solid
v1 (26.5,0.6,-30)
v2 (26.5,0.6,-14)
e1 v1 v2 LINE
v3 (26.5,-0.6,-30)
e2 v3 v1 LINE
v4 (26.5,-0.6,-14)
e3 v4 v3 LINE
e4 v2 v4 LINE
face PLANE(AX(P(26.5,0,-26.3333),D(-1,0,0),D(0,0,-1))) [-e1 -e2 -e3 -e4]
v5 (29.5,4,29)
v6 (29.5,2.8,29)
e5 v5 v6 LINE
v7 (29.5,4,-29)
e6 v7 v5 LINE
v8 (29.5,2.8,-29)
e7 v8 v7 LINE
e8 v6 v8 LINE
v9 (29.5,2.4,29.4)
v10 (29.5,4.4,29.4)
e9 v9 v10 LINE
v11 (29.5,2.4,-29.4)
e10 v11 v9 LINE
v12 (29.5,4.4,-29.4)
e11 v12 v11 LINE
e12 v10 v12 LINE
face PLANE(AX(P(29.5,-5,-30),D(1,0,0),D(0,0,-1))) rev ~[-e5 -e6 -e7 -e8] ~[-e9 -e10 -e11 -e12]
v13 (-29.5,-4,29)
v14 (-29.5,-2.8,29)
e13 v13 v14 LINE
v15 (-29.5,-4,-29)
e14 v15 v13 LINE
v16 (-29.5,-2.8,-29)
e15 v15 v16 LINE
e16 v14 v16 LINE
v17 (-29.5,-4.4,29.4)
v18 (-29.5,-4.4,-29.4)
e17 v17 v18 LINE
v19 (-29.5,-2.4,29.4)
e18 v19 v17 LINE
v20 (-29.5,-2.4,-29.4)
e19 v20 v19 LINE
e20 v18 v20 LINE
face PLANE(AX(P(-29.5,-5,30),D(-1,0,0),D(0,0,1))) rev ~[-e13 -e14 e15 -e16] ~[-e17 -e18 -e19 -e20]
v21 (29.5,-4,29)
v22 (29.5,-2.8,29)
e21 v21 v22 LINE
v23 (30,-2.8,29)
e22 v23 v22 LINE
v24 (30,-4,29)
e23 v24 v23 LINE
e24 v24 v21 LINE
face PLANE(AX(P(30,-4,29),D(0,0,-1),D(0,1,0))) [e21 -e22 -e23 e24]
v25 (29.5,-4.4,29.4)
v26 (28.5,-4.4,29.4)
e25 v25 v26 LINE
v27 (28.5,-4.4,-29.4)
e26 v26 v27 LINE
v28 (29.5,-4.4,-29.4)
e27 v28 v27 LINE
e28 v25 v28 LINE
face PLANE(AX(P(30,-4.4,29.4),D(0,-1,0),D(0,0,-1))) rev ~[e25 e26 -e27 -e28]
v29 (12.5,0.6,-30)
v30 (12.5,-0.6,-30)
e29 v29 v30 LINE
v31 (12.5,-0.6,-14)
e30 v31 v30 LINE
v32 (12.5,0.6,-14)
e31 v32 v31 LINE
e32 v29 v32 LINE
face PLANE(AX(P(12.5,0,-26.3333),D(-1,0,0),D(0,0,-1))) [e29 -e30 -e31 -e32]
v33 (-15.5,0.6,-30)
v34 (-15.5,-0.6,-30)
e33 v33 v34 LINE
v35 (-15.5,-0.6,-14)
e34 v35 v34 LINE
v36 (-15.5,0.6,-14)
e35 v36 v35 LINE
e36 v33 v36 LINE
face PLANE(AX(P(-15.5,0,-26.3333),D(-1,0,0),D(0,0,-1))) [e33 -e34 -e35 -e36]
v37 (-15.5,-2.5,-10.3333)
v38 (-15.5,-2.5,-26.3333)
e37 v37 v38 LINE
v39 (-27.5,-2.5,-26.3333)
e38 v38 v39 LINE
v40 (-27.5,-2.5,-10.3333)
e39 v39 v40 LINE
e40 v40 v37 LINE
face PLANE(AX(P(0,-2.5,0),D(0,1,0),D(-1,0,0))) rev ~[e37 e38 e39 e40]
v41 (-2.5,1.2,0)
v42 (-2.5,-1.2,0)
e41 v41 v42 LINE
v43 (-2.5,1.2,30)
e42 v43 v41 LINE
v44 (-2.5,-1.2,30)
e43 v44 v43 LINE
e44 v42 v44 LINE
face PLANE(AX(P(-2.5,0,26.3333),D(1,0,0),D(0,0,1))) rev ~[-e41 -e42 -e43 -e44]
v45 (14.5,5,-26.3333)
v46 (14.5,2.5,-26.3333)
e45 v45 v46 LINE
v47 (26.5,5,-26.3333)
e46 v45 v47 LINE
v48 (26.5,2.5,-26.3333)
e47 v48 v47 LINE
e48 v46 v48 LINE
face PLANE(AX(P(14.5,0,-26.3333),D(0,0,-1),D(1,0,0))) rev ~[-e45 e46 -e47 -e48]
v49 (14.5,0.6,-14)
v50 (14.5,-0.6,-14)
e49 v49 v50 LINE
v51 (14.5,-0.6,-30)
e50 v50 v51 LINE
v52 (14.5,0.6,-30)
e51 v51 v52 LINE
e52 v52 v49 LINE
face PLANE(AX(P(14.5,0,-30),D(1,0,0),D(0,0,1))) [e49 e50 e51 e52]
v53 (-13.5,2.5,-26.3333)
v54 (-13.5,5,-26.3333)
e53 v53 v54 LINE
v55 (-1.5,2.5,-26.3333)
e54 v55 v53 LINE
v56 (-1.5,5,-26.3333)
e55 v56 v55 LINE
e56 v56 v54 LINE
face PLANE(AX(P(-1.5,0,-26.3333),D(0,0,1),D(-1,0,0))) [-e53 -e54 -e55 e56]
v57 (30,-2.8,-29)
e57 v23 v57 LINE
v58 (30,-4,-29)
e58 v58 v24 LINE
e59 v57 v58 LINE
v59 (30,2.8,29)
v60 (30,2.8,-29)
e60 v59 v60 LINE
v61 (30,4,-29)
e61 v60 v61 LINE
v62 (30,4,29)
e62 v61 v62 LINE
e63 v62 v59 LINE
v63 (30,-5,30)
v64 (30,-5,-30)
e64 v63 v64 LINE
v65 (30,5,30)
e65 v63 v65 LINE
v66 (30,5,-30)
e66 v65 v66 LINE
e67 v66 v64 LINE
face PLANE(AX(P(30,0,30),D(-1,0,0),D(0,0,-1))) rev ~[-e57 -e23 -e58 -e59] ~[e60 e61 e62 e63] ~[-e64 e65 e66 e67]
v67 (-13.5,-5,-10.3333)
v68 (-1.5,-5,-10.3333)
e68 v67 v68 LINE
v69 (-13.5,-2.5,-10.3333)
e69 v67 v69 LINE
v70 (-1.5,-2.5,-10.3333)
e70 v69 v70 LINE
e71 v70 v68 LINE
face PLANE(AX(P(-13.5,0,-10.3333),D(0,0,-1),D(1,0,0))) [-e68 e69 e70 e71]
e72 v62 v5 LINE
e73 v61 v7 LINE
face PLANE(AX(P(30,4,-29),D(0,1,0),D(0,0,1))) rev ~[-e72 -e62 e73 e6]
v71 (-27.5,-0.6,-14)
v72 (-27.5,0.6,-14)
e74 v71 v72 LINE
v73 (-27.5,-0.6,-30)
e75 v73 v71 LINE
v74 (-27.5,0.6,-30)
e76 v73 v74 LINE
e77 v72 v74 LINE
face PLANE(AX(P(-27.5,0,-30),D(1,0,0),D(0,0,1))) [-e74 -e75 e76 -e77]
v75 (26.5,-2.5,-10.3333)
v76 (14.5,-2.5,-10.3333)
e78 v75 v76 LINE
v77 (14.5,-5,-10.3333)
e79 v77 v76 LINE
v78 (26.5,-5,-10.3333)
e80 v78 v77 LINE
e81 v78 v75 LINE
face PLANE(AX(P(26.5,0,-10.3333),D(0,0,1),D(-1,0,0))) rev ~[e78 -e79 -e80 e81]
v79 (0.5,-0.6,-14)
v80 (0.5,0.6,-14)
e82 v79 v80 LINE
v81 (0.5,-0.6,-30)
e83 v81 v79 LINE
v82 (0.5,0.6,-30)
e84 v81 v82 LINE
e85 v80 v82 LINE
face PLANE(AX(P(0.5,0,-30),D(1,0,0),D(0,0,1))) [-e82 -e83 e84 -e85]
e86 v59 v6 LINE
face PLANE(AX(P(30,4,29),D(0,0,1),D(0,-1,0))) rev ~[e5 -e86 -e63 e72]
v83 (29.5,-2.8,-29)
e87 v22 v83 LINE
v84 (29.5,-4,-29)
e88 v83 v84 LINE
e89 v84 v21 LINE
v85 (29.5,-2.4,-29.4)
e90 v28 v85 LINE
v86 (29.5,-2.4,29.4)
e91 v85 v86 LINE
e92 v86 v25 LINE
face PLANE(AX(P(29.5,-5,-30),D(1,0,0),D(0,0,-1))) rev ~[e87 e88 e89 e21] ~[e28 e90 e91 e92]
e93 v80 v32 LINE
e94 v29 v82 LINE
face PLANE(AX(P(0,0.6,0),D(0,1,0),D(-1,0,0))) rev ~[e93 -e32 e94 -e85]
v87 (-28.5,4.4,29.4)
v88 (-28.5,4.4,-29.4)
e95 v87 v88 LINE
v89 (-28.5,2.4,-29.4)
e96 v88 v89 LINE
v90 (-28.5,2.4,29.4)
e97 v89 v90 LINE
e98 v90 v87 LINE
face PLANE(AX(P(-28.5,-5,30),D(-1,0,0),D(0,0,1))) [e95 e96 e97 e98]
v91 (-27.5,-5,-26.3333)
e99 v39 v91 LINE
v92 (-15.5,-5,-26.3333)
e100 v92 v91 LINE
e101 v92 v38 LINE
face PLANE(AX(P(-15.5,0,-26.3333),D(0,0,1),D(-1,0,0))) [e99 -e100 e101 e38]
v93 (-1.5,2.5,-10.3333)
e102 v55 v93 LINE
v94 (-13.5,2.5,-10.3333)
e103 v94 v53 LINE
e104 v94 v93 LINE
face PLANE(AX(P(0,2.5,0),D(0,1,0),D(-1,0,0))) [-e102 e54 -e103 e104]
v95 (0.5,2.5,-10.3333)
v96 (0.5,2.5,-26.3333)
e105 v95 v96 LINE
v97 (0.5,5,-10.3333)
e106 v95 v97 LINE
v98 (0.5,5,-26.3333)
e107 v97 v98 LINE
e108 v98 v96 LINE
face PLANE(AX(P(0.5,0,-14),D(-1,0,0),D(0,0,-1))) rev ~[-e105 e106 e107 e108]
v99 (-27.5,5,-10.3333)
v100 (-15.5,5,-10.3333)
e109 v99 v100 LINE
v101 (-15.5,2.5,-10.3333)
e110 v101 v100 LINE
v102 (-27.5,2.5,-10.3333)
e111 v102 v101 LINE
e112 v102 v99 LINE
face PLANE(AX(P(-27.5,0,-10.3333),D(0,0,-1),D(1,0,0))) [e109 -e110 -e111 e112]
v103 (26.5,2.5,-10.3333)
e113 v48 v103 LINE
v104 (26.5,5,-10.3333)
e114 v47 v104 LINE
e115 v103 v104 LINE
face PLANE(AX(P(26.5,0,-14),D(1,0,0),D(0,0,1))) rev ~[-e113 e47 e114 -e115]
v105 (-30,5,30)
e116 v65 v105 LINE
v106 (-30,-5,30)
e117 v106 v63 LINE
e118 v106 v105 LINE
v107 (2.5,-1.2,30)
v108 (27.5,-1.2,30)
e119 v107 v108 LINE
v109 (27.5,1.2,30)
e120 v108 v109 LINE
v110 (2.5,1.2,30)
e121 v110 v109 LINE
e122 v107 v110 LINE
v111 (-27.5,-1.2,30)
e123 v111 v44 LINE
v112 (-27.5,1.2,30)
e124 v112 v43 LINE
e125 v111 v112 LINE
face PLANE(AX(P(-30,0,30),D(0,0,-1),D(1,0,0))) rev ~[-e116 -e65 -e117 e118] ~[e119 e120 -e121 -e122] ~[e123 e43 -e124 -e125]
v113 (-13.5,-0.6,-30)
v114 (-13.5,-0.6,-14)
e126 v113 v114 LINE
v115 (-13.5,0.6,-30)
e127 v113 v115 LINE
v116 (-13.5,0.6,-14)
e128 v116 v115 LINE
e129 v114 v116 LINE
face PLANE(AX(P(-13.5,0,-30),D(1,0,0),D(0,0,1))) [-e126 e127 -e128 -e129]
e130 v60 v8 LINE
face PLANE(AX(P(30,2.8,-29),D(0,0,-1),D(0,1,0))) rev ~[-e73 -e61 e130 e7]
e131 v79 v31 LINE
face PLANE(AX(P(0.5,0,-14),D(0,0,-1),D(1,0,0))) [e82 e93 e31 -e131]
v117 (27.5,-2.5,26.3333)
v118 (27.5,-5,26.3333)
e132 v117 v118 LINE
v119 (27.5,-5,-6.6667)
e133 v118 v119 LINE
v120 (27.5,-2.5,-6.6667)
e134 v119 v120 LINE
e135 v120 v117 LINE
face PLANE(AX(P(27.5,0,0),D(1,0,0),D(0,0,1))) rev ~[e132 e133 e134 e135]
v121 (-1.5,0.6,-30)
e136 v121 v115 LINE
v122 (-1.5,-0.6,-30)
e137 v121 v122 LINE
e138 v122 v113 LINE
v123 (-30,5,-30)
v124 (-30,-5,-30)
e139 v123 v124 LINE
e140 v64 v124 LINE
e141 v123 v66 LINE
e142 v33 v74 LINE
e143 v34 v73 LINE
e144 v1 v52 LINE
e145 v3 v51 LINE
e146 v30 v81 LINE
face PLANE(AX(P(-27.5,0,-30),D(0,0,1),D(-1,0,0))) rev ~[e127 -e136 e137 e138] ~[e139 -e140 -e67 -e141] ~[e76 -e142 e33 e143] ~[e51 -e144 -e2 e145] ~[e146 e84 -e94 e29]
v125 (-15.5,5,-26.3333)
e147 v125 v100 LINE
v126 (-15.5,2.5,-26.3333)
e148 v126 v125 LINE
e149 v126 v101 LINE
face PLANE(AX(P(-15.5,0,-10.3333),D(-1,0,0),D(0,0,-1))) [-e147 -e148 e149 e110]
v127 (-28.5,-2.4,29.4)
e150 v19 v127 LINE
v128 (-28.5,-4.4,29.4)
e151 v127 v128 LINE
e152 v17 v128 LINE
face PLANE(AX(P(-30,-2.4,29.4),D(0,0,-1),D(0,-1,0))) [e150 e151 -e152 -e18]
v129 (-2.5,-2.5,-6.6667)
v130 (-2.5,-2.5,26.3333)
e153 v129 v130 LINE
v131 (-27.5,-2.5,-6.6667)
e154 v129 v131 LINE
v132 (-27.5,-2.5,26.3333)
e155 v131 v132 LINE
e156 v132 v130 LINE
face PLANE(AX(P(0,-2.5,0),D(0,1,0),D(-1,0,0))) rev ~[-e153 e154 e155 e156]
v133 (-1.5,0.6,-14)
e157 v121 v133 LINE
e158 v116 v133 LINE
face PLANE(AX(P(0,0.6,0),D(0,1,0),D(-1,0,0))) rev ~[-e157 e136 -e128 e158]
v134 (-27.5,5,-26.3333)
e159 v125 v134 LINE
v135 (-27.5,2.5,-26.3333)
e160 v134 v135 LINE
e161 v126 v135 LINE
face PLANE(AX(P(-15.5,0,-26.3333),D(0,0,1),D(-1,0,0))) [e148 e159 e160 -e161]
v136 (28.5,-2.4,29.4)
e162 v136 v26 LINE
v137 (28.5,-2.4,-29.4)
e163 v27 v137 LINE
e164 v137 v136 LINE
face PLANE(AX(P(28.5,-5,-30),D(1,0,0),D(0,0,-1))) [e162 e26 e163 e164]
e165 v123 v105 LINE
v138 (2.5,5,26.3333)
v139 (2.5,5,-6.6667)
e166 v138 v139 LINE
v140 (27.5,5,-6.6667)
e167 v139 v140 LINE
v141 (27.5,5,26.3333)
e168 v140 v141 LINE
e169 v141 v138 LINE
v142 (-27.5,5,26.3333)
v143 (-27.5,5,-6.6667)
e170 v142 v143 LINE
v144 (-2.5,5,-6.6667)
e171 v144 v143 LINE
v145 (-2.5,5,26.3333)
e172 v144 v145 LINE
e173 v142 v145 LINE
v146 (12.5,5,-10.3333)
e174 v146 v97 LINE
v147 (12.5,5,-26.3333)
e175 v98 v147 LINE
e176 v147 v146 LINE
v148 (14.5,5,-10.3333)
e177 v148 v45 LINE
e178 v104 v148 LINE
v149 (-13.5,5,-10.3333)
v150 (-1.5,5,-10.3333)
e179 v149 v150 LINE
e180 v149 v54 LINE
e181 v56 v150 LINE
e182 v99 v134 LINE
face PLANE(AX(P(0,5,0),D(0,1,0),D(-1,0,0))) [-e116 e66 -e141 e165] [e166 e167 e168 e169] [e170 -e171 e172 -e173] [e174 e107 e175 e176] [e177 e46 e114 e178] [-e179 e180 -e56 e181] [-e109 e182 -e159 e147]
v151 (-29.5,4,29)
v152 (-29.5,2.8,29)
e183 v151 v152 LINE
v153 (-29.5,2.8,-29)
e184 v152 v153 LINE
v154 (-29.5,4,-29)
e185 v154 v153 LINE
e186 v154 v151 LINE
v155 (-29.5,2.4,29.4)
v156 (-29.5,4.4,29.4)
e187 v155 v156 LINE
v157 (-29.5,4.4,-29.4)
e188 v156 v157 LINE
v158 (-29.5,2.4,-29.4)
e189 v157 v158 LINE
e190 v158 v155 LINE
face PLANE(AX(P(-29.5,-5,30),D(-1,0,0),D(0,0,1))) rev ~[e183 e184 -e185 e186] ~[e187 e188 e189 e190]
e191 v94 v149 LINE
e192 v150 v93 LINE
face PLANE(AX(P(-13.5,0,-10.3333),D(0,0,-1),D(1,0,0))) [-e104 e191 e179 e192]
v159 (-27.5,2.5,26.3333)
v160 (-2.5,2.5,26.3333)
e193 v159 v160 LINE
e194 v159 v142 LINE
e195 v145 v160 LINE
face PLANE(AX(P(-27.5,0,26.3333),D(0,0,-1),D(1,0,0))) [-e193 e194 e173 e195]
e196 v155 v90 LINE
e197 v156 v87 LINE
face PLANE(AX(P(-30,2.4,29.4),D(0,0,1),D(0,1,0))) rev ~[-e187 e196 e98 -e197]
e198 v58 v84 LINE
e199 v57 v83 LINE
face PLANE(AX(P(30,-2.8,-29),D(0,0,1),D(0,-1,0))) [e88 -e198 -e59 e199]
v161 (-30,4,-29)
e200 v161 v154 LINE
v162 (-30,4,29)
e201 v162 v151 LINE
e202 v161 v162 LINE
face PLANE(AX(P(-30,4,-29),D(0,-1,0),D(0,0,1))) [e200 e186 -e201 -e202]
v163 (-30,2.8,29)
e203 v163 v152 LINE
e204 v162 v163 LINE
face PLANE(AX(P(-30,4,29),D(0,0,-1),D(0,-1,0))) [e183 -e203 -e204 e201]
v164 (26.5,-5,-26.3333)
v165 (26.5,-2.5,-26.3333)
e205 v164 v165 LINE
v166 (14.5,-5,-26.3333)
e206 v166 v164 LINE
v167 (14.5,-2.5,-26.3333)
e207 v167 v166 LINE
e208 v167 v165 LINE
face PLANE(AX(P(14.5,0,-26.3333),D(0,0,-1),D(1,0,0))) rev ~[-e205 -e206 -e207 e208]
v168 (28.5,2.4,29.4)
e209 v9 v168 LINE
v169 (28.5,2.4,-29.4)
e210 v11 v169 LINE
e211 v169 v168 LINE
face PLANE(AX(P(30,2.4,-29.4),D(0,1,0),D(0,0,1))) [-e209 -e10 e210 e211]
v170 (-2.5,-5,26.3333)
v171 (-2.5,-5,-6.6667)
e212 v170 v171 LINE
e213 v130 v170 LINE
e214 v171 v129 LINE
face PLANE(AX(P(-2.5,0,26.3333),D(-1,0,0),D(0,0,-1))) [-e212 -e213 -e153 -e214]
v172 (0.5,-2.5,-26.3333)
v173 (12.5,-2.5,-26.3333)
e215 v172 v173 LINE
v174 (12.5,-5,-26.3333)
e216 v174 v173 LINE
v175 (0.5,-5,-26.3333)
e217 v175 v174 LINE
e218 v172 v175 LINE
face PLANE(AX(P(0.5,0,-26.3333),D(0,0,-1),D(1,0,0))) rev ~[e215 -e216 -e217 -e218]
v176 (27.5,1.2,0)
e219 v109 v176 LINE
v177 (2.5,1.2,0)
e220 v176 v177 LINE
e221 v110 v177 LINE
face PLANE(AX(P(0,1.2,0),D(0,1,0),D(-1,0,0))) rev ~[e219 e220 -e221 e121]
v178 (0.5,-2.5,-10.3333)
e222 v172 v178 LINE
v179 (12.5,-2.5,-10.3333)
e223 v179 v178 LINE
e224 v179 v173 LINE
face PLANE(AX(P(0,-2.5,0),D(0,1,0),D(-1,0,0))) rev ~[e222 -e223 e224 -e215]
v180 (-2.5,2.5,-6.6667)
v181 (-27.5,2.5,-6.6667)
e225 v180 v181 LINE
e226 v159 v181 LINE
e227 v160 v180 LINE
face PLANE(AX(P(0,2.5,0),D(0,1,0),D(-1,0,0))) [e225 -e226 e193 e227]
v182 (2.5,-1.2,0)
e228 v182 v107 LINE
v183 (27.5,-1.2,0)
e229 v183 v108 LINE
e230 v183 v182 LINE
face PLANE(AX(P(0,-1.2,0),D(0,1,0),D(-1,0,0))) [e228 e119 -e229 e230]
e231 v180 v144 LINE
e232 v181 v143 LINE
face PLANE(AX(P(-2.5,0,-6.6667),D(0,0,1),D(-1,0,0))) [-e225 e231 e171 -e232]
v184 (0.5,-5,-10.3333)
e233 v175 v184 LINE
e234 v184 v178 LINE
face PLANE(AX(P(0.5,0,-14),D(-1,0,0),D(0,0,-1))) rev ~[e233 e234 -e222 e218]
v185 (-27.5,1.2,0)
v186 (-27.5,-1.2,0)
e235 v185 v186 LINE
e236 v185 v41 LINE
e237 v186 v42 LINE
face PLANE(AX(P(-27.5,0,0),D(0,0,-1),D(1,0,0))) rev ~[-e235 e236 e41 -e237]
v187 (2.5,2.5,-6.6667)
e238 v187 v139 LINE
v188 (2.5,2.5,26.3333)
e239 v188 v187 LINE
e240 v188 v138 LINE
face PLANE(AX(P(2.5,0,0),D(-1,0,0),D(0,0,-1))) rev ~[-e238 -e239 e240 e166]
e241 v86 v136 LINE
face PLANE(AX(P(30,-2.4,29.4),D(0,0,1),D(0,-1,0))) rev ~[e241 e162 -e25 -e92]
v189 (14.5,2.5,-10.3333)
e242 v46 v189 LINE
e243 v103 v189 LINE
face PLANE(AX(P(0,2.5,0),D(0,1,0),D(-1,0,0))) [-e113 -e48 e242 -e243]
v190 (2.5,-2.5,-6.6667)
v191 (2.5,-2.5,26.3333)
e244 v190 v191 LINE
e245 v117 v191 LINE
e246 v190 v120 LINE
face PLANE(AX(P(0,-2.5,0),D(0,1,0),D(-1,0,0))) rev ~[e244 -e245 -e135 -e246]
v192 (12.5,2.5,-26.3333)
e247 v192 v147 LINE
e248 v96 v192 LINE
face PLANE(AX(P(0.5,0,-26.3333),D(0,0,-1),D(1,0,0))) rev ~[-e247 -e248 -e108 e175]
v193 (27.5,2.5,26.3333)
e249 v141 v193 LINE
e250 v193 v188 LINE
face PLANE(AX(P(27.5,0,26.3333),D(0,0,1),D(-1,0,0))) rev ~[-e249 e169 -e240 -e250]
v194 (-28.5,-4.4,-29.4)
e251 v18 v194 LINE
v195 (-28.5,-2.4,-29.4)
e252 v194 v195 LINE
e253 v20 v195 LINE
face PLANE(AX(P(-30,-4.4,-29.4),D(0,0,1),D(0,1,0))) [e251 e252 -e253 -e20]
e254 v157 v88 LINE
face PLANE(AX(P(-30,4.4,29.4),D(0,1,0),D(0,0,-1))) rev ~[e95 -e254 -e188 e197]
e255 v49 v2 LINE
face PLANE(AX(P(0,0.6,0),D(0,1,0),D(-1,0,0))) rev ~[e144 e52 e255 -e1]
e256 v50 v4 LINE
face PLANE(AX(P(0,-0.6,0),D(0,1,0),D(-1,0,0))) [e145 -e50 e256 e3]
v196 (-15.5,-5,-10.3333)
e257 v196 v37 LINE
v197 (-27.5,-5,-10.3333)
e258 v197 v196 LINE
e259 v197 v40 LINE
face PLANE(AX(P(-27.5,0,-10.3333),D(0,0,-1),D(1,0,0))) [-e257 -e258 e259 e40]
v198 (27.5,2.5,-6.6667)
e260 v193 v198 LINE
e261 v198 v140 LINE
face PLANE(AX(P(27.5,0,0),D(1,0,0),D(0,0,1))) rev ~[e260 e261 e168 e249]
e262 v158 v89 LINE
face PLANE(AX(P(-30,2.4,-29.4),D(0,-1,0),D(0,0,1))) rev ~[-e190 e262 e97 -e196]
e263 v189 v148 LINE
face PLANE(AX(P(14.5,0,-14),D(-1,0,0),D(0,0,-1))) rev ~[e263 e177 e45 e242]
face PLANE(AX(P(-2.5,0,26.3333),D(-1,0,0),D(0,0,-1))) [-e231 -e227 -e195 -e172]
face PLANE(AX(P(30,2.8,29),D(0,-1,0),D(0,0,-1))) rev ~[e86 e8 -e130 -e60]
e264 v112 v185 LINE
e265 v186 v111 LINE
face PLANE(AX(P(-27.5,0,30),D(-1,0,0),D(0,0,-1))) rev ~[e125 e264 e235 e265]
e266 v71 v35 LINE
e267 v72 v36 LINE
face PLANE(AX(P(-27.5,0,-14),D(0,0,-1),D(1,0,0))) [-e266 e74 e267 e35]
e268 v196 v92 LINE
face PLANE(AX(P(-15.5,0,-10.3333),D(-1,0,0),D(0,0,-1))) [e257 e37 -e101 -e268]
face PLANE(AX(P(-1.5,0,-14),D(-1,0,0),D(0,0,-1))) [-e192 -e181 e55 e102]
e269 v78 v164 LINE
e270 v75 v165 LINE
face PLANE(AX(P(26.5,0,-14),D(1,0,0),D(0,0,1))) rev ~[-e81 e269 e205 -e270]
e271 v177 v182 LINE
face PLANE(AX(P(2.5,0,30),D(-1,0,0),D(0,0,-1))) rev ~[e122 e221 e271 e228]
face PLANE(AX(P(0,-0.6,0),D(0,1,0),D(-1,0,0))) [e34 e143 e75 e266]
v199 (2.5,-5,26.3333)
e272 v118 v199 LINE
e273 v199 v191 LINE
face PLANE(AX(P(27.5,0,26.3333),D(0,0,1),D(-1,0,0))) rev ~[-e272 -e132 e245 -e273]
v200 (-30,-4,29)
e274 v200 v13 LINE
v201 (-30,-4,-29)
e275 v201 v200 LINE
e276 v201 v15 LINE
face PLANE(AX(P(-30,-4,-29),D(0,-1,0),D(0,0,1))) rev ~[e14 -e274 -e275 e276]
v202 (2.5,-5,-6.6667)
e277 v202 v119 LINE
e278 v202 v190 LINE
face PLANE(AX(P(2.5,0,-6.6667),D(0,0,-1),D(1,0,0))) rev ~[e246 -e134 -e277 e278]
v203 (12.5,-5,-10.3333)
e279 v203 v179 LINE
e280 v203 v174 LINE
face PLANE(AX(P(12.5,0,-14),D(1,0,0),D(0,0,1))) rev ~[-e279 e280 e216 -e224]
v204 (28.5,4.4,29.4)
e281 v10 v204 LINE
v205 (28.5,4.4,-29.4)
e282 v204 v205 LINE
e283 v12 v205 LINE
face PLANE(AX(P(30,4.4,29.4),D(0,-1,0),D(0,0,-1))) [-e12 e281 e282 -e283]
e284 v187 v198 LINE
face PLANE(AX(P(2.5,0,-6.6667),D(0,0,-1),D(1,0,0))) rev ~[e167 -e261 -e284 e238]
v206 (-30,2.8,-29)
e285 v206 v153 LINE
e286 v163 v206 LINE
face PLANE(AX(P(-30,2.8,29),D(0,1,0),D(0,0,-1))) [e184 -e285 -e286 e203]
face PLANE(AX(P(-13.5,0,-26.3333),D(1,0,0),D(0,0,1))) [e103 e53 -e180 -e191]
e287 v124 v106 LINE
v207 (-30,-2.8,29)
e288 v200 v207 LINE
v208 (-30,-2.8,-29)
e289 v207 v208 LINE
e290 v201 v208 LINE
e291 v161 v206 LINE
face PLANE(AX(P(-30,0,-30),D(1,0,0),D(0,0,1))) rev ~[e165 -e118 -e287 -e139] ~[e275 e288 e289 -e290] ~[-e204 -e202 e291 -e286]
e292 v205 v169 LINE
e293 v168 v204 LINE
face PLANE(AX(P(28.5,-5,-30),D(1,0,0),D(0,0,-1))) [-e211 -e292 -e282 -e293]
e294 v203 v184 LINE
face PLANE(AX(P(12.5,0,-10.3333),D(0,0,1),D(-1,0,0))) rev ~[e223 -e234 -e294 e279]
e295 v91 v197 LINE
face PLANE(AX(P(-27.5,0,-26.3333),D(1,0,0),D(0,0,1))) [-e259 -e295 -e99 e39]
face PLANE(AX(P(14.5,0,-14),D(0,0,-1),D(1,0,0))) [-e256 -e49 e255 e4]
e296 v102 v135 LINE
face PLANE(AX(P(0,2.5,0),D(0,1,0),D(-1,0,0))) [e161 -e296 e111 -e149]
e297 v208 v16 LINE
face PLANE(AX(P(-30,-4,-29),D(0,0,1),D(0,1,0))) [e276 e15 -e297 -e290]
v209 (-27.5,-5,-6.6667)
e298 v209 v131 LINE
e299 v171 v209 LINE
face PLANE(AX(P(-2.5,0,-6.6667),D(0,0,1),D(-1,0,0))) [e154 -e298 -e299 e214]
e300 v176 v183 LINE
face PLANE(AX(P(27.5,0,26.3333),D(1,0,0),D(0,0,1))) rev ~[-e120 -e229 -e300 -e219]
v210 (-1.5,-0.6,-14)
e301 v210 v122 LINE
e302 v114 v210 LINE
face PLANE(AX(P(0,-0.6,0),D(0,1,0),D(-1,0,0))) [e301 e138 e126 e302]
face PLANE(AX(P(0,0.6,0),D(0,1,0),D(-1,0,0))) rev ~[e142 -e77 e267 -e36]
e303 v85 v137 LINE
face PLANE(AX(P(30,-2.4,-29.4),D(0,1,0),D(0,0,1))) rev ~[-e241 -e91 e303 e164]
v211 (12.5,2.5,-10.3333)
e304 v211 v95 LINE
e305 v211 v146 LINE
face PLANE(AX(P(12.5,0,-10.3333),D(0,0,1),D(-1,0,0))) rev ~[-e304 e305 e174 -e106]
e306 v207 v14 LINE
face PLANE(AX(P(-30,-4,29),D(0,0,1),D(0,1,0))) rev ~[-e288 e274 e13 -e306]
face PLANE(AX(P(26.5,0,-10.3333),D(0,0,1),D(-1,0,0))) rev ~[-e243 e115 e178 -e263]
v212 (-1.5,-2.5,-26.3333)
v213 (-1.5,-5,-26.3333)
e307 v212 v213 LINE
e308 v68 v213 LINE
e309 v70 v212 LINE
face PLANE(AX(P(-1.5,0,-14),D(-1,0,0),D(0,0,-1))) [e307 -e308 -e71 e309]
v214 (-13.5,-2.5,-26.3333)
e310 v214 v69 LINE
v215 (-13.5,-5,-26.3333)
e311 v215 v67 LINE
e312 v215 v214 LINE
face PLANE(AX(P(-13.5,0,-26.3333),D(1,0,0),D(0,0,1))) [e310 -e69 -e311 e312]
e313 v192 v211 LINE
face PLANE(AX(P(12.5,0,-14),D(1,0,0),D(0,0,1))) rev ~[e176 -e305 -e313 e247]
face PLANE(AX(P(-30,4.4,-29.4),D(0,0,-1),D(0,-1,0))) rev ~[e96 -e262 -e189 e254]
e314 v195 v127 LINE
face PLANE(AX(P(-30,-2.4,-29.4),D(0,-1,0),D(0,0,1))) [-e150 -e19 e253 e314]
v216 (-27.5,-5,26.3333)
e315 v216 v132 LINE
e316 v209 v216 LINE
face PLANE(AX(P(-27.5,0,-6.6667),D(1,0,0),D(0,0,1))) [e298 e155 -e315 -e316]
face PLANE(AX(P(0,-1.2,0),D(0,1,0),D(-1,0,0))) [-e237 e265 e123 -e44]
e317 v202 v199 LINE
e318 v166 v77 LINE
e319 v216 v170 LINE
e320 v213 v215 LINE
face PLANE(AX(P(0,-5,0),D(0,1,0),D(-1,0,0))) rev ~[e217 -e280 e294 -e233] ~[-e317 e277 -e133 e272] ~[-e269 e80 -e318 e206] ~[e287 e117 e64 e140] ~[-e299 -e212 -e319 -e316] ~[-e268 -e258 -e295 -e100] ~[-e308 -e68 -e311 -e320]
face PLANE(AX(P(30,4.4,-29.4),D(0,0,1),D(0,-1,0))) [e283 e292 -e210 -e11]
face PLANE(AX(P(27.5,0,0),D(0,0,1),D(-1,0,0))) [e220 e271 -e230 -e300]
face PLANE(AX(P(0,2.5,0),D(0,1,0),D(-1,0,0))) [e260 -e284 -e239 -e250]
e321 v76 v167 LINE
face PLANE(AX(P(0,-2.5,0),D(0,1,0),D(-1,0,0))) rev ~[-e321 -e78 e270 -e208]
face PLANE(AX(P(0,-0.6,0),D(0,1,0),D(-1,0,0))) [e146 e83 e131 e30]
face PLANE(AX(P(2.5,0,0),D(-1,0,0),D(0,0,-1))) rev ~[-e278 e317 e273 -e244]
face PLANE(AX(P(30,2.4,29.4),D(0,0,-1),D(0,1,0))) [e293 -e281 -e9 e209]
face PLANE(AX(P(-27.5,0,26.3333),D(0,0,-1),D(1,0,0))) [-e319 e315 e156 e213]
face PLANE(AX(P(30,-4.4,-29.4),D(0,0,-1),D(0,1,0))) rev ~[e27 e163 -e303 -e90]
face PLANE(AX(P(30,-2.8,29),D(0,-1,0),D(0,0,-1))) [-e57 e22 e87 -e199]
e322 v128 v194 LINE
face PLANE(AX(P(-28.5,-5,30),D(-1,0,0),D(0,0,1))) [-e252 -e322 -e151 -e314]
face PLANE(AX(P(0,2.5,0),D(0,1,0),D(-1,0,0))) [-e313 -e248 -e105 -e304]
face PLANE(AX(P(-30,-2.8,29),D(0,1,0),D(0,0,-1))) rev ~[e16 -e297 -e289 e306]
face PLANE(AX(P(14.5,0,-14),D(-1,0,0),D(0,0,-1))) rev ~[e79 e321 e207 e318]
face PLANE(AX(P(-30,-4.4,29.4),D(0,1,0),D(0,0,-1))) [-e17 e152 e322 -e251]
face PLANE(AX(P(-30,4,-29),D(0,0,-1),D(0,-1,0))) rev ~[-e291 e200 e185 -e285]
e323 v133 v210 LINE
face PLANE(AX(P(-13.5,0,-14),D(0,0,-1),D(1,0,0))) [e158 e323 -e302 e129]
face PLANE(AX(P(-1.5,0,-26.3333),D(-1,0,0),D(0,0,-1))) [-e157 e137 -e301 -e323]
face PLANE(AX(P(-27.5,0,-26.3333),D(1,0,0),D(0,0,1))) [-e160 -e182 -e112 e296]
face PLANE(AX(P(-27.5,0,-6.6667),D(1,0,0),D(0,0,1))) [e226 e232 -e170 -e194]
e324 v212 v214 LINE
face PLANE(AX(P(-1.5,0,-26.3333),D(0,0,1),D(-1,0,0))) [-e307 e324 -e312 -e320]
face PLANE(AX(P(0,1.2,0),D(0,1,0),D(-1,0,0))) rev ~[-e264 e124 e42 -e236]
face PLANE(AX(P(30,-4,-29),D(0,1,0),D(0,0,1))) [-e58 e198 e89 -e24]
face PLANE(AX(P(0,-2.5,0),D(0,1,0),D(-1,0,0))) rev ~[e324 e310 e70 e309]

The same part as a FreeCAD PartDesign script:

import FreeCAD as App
import Part
import Sketcher
from FreeCAD import Vector
Q = App.Units.Quantity


def add_polygon(sketch, points):
    """Adds a closed chain of lines whose ends are joined by coincident constraints."""
    first, n = sketch.GeometryCount, len(points)
    for a, b in zip(points, points[1:] + points[:1]):
        sketch.addGeometry(Part.LineSegment(App.Vector(*a, 0), App.Vector(*b, 0)), False)
    for i in range(n):
        sketch.addConstraint(Sketcher.Constraint("Coincident", first + i, 2, first + (i + 1) % n, 1))

doc = App.newDocument("Part")
body = doc.addObject("PartDesign::Body", "Body")

sketch1 = body.newObject("Sketcher::SketchObject", "Sketch")
sketch1.AttachmentSupport = (doc.getObject("XZ_Plane"), [""])
sketch1.MapMode = "FlatFace"
add_polygon(sketch1, [(-30, -30), (-30, 30), (30, 30), (30, -30)])
add_polygon(sketch1, [(-28, -26), (-16, -26), (-16, -10), (-28, -10)])
add_polygon(sketch1, [(0, -26), (12, -26), (12, -10), (0, -10)])
add_polygon(sketch1, [(14, -26), (26, -26), (26, -10), (14, -10)])
add_polygon(sketch1, [(28, 26), (2, 26), (2, -7), (28, -7)])
add_polygon(sketch1, [(-2, 26), (-28, 26), (-28, -7), (-2, -7)])
sketch1.addConstraint(Sketcher.Constraint("Vertical", 0))
sketch1.addConstraint(Sketcher.Constraint("Horizontal", 1))
sketch1.addConstraint(Sketcher.Constraint("Vertical", 2))
sketch1.addConstraint(Sketcher.Constraint("Horizontal", 3))
sketch1.addConstraint(Sketcher.Constraint("Horizontal", 4))
sketch1.addConstraint(Sketcher.Constraint("Vertical", 5))
sketch1.addConstraint(Sketcher.Constraint("Horizontal", 6))
sketch1.addConstraint(Sketcher.Constraint("Vertical", 7))
sketch1.addConstraint(Sketcher.Constraint("Horizontal", 8))
sketch1.addConstraint(Sketcher.Constraint("Vertical", 9))
sketch1.addConstraint(Sketcher.Constraint("Horizontal", 10))
sketch1.addConstraint(Sketcher.Constraint("Vertical", 11))
sketch1.addConstraint(Sketcher.Constraint("Horizontal", 12))
sketch1.addConstraint(Sketcher.Constraint("Vertical", 13))
sketch1.addConstraint(Sketcher.Constraint("Horizontal", 14))
sketch1.addConstraint(Sketcher.Constraint("Vertical", 15))
sketch1.addConstraint(Sketcher.Constraint("Horizontal", 16))
sketch1.addConstraint(Sketcher.Constraint("Vertical", 17))
sketch1.addConstraint(Sketcher.Constraint("Horizontal", 18))
sketch1.addConstraint(Sketcher.Constraint("Vertical", 19))
sketch1.addConstraint(Sketcher.Constraint("Horizontal", 20))
sketch1.addConstraint(Sketcher.Constraint("Vertical", 21))
sketch1.addConstraint(Sketcher.Constraint("Horizontal", 22))
sketch1.addConstraint(Sketcher.Constraint("Vertical", 23))
sketch1.addConstraint(Sketcher.Constraint("Symmetric", 0, 2, 2, 2, -1, 1))
sketch1.addConstraint(Sketcher.Constraint("Symmetric", 7, 2, 19, 2, -1, 1))
sketch1.addConstraint(Sketcher.Constraint("Symmetric", 19, 2, 20, 2, -2))
sketch1.addConstraint(Sketcher.Constraint("Symmetric", 17, 2, 22, 2, -2))
sketch1.addConstraint(Sketcher.Constraint("Horizontal", 7, 2, 8, 2))
sketch1.addConstraint(Sketcher.Constraint("Horizontal", 6, 2, 9, 2))
sketch1.addConstraint(Sketcher.Constraint("Horizontal", 11, 2, 12, 2))
sketch1.addConstraint(Sketcher.Constraint("Horizontal", 10, 2, 13, 2))
sketch1.addConstraint(Sketcher.Constraint("Equal", 6, 8))
sketch1.addConstraint(Sketcher.Constraint("Equal", 10, 12))
sketch1.addConstraint(Sketcher.Constraint("Equal", 3, 0))
sketch1.addConstraint(Sketcher.Constraint("DistanceX", 1, 1, 1, 2, Q("60 mm")))
sketch1.addConstraint(Sketcher.Constraint("DistanceX", 4, 1, 4, 2, Q("12 mm")))
sketch1.addConstraint(Sketcher.Constraint("DistanceX", 16, 2, 16, 1, Q("25 mm")))
sketch1.addConstraint(Sketcher.Constraint("DistanceY", 5, 1, 5, 2, Q("16 mm")))
sketch1.addConstraint(Sketcher.Constraint("DistanceY", 17, 2, 17, 1, Q("33 mm")))
sketch1.addConstraint(Sketcher.Constraint("DistanceX", 5, 2, 10, 2, Q("16 mm")))
sketch1.addConstraint(Sketcher.Constraint("DistanceX", 8, 2, 12, 2, Q("14 mm")))
sketch1.addConstraint(Sketcher.Constraint("DistanceX", 10, 2, 16, 2, Q("2 mm")))
sketch1.addConstraint(Sketcher.Constraint("DistanceY", 4, 2, -1, 1, Q("26.3333 mm")))
pad1 = body.newObject("PartDesign::Pad", "Pad")
pad1.Profile = sketch1
pad1.Length = 10
pad1.Midplane = True

sketch2 = body.newObject("Sketcher::SketchObject", "Sketch001")
sketch2.AttachmentSupport = (doc.getObject("XZ_Plane"), [""])
sketch2.MapMode = "FlatFace"
add_polygon(sketch2, [(-28, 26), (-2, 26), (-2, -7), (-28, -7)])
add_polygon(sketch2, [(-16, -26), (-28, -26), (-28, -10), (-16, -10)])
add_polygon(sketch2, [(2, 26), (28, 26), (28, -7), (2, -7)])
add_polygon(sketch2, [(12, -26), (0, -26), (0, -10), (12, -10)])
add_polygon(sketch2, [(26, -26), (14, -26), (14, -10), (26, -10)])
sketch2.addConstraint(Sketcher.Constraint("Horizontal", 0))
sketch2.addConstraint(Sketcher.Constraint("Vertical", 1))
sketch2.addConstraint(Sketcher.Constraint("Horizontal", 2))
sketch2.addConstraint(Sketcher.Constraint("Vertical", 3))
sketch2.addConstraint(Sketcher.Constraint("Horizontal", 4))
sketch2.addConstraint(Sketcher.Constraint("Vertical", 5))
sketch2.addConstraint(Sketcher.Constraint("Horizontal", 6))
sketch2.addConstraint(Sketcher.Constraint("Vertical", 7))
sketch2.addConstraint(Sketcher.Constraint("Horizontal", 8))
sketch2.addConstraint(Sketcher.Constraint("Vertical", 9))
sketch2.addConstraint(Sketcher.Constraint("Horizontal", 10))
sketch2.addConstraint(Sketcher.Constraint("Vertical", 11))
sketch2.addConstraint(Sketcher.Constraint("Horizontal", 12))
sketch2.addConstraint(Sketcher.Constraint("Vertical", 13))
sketch2.addConstraint(Sketcher.Constraint("Horizontal", 14))
sketch2.addConstraint(Sketcher.Constraint("Vertical", 15))
sketch2.addConstraint(Sketcher.Constraint("Horizontal", 16))
sketch2.addConstraint(Sketcher.Constraint("Vertical", 17))
sketch2.addConstraint(Sketcher.Constraint("Horizontal", 18))
sketch2.addConstraint(Sketcher.Constraint("Vertical", 19))
sketch2.addConstraint(Sketcher.Constraint("Symmetric", 4, 2, 8, 2, -1, 1))
sketch2.addConstraint(Sketcher.Constraint("Symmetric", 3, 2, 8, 2, -2))
sketch2.addConstraint(Sketcher.Constraint("Symmetric", 1, 2, 10, 2, -2))
sketch2.addConstraint(Sketcher.Constraint("Horizontal", 7, 2, 12, 2))
sketch2.addConstraint(Sketcher.Constraint("Horizontal", 6, 2, 13, 2))
sketch2.addConstraint(Sketcher.Constraint("Horizontal", 15, 2, 16, 2))
sketch2.addConstraint(Sketcher.Constraint("Horizontal", 14, 2, 17, 2))
sketch2.addConstraint(Sketcher.Constraint("Equal", 6, 12))
sketch2.addConstraint(Sketcher.Constraint("Equal", 14, 16))
sketch2.addConstraint(Sketcher.Constraint("DistanceX", 0, 1, 0, 2, Q("25 mm")))
sketch2.addConstraint(Sketcher.Constraint("DistanceX", 4, 2, 4, 1, Q("12 mm")))
sketch2.addConstraint(Sketcher.Constraint("DistanceY", 1, 2, 1, 1, Q("33 mm")))
sketch2.addConstraint(Sketcher.Constraint("DistanceY", 5, 1, 5, 2, Q("16 mm")))
sketch2.addConstraint(Sketcher.Constraint("DistanceX", 0, 2, 8, 2, Q("30 mm")))
sketch2.addConstraint(Sketcher.Constraint("DistanceX", 7, 2, 12, 2, Q("16 mm")))
sketch2.addConstraint(Sketcher.Constraint("DistanceX", 15, 2, 16, 2, Q("2 mm")))
sketch2.addConstraint(Sketcher.Constraint("DistanceY", -1, 1, 0, 2, Q("26.3333 mm")))
pad2 = body.newObject("PartDesign::Pad", "Pad001")
pad2.Profile = sketch2
pad2.Length = 5
pad2.Midplane = True

sketch3 = body.newObject("Sketcher::SketchObject", "Sketch002")
sketch3.AttachmentSupport = (doc.getObject("XZ_Plane"), [""])
sketch3.MapMode = "FlatFace"
add_polygon(sketch3, [(-2, -26), (-14, -26), (-14, -10), (-2, -10)])
sketch3.addConstraint(Sketcher.Constraint("Horizontal", 0))
sketch3.addConstraint(Sketcher.Constraint("Vertical", 1))
sketch3.addConstraint(Sketcher.Constraint("Horizontal", 2))
sketch3.addConstraint(Sketcher.Constraint("Vertical", 3))
sketch3.addConstraint(Sketcher.Constraint("DistanceX", 0, 2, 0, 1, Q("12 mm")))
sketch3.addConstraint(Sketcher.Constraint("DistanceY", 1, 1, 1, 2, Q("16 mm")))
sketch3.addConstraint(Sketcher.Constraint("DistanceX", 0, 2, -1, 1, Q("13.5 mm")))
sketch3.addConstraint(Sketcher.Constraint("DistanceY", 0, 2, -1, 1, Q("26.3333 mm")))
pocket1 = body.newObject("PartDesign::Pocket", "Pocket")
pocket1.Profile = sketch3
pocket1.Length = 10
pocket1.Midplane = True

sketch4 = body.newObject("Sketcher::SketchObject", "Sketch003")
sketch4.AttachmentSupport = (doc.getObject("XZ_Plane"), [""])
sketch4.MapMode = "FlatFace"
add_polygon(sketch4, [(-2, -26), (-14, -26), (-14, -10), (-2, -10)])
sketch4.addConstraint(Sketcher.Constraint("Horizontal", 0))
sketch4.addConstraint(Sketcher.Constraint("Vertical", 1))
sketch4.addConstraint(Sketcher.Constraint("Horizontal", 2))
sketch4.addConstraint(Sketcher.Constraint("Vertical", 3))
sketch4.addConstraint(Sketcher.Constraint("DistanceX", 0, 2, 0, 1, Q("12 mm")))
sketch4.addConstraint(Sketcher.Constraint("DistanceY", 1, 1, 1, 2, Q("16 mm")))
sketch4.addConstraint(Sketcher.Constraint("DistanceX", 0, 2, -1, 1, Q("13.5 mm")))
sketch4.addConstraint(Sketcher.Constraint("DistanceY", 0, 2, -1, 1, Q("26.3333 mm")))
pad3 = body.newObject("PartDesign::Pad", "Pad002")
pad3.Profile = sketch4
pad3.Length = 5
pad3.Midplane = True

sketch5 = body.newObject("Sketcher::SketchObject", "Sketch004")
sketch5.AttachmentSupport = (doc.getObject("XZ_Plane"), [""])
sketch5.MapMode = "FlatFace"
add_polygon(sketch5, [(-16, -30), (-28, -30), (-28, -14), (-16, -14)])
add_polygon(sketch5, [(-2, -30), (-14, -30), (-14, -14), (-2, -14)])
add_polygon(sketch5, [(12, -30), (0, -30), (0, -14), (12, -14)])
add_polygon(sketch5, [(26, -30), (14, -30), (14, -14), (26, -14)])
sketch5.addConstraint(Sketcher.Constraint("Horizontal", 0))
sketch5.addConstraint(Sketcher.Constraint("Vertical", 1))
sketch5.addConstraint(Sketcher.Constraint("Horizontal", 2))
sketch5.addConstraint(Sketcher.Constraint("Vertical", 3))
sketch5.addConstraint(Sketcher.Constraint("Horizontal", 4))
sketch5.addConstraint(Sketcher.Constraint("Vertical", 5))
sketch5.addConstraint(Sketcher.Constraint("Horizontal", 6))
sketch5.addConstraint(Sketcher.Constraint("Vertical", 7))
sketch5.addConstraint(Sketcher.Constraint("Horizontal", 8))
sketch5.addConstraint(Sketcher.Constraint("Vertical", 9))
sketch5.addConstraint(Sketcher.Constraint("Horizontal", 10))
sketch5.addConstraint(Sketcher.Constraint("Vertical", 11))
sketch5.addConstraint(Sketcher.Constraint("Horizontal", 12))
sketch5.addConstraint(Sketcher.Constraint("Vertical", 13))
sketch5.addConstraint(Sketcher.Constraint("Horizontal", 14))
sketch5.addConstraint(Sketcher.Constraint("Vertical", 15))
sketch5.addConstraint(Sketcher.Constraint("Horizontal", 3, 2, 4, 2))
sketch5.addConstraint(Sketcher.Constraint("Horizontal", 2, 2, 5, 2))
sketch5.addConstraint(Sketcher.Constraint("Horizontal", 7, 2, 8, 2))
sketch5.addConstraint(Sketcher.Constraint("Horizontal", 6, 2, 9, 2))
sketch5.addConstraint(Sketcher.Constraint("Horizontal", 11, 2, 12, 2))
sketch5.addConstraint(Sketcher.Constraint("Horizontal", 10, 2, 13, 2))
sketch5.addConstraint(Sketcher.Constraint("Equal", 2, 4))
sketch5.addConstraint(Sketcher.Constraint("Equal", 6, 8))
sketch5.addConstraint(Sketcher.Constraint("Equal", 10, 12))
sketch5.addConstraint(Sketcher.Constraint("DistanceX", 0, 2, 0, 1, Q("12 mm")))
sketch5.addConstraint(Sketcher.Constraint("DistanceY", 1, 1, 1, 2, Q("16 mm")))
sketch5.addConstraint(Sketcher.Constraint("DistanceY", 0, 2, -1, 1, Q("30 mm")))
sketch5.addConstraint(Sketcher.Constraint("DistanceX", 3, 2, 4, 2, Q("2 mm")))
sketch5.addConstraint(Sketcher.Constraint("DistanceX", 7, 2, 8, 2, Q("2 mm")))
sketch5.addConstraint(Sketcher.Constraint("DistanceX", 11, 2, 12, 2, Q("2 mm")))
sketch5.addConstraint(Sketcher.Constraint("DistanceX", 0, 2, -1, 1, Q("27.5 mm")))
pocket2 = body.newObject("PartDesign::Pocket", "Pocket001")
pocket2.Profile = sketch5
pocket2.Length = 1.2
pocket2.Midplane = True

sketch6 = body.newObject("Sketcher::SketchObject", "Sketch005")
sketch6.AttachmentSupport = (doc.getObject("XZ_Plane"), [""])
sketch6.MapMode = "FlatFace"
add_polygon(sketch6, [(-28, 30), (-2, 30), (-2, 0), (-28, 0)])
add_polygon(sketch6, [(2, 30), (28, 30), (28, 0), (2, 0)])
sketch6.addConstraint(Sketcher.Constraint("Horizontal", 0))
sketch6.addConstraint(Sketcher.Constraint("Vertical", 1))
sketch6.addConstraint(Sketcher.Constraint("Horizontal", 2))
sketch6.addConstraint(Sketcher.Constraint("Vertical", 3))
sketch6.addConstraint(Sketcher.Constraint("Horizontal", 4))
sketch6.addConstraint(Sketcher.Constraint("Vertical", 5))
sketch6.addConstraint(Sketcher.Constraint("Horizontal", 6))
sketch6.addConstraint(Sketcher.Constraint("Vertical", 7))
sketch6.addConstraint(Sketcher.Constraint("Symmetric", 2, 2, 5, 2, -1, 1))
sketch6.addConstraint(Sketcher.Constraint("Symmetric", 1, 2, 6, 2, -2))
sketch6.addConstraint(Sketcher.Constraint("Horizontal", 3, 2, 4, 2))
sketch6.addConstraint(Sketcher.Constraint("DistanceX", 0, 1, 0, 2, Q("25 mm")))
sketch6.addConstraint(Sketcher.Constraint("DistanceY", 1, 2, 1, 1, Q("30 mm")))
sketch6.addConstraint(Sketcher.Constraint("DistanceX", 0, 2, 4, 2, Q("30 mm")))
pocket3 = body.newObject("PartDesign::Pocket", "Pocket002")
pocket3.Profile = sketch6
pocket3.Length = 2.4
pocket3.Midplane = True

sketch7 = body.newObject("Sketcher::SketchObject", "Sketch006")
sketch7.AttachmentSupport = (doc.getObject("YZ_Plane"), [""])
sketch7.MapMode = "FlatFace"
sketch7.AttachmentOffset = App.Placement(Vector(0, 0, -30), App.Rotation())
add_polygon(sketch7, [(2.4, 29.4), (4.4, 29.4), (4.4, -29.4), (2.4, -29.4)])
add_polygon(sketch7, [(-4.4, -29.4), (-4.4, 29.4), (-2.4, 29.4), (-2.4, -29.4)])
sketch7.addConstraint(Sketcher.Constraint("Horizontal", 0))
sketch7.addConstraint(Sketcher.Constraint("Vertical", 1))
sketch7.addConstraint(Sketcher.Constraint("Horizontal", 2))
sketch7.addConstraint(Sketcher.Constraint("Vertical", 3))
sketch7.addConstraint(Sketcher.Constraint("Vertical", 4))
sketch7.addConstraint(Sketcher.Constraint("Horizontal", 5))
sketch7.addConstraint(Sketcher.Constraint("Vertical", 6))
sketch7.addConstraint(Sketcher.Constraint("Horizontal", 7))
sketch7.addConstraint(Sketcher.Constraint("Symmetric", 1, 2, 4, 2, -1, 1))
sketch7.addConstraint(Sketcher.Constraint("Symmetric", 3, 2, 6, 2, -1, 1))
sketch7.addConstraint(Sketcher.Constraint("Horizontal", 3, 2, 4, 2))
sketch7.addConstraint(Sketcher.Constraint("DistanceX", 0, 1, 0, 2, Q("2 mm")))
sketch7.addConstraint(Sketcher.Constraint("DistanceY", 1, 2, 1, 1, Q("58.8 mm")))
sketch7.addConstraint(Sketcher.Constraint("DistanceX", -1, 1, 0, 2, Q("4.4 mm")))
pocket4 = body.newObject("PartDesign::Pocket", "Pocket003")
pocket4.Profile = sketch7
pocket4.Length = 1.5
pocket4.Reversed = True

sketch8 = body.newObject("Sketcher::SketchObject", "Sketch007")
sketch8.AttachmentSupport = (doc.getObject("YZ_Plane"), [""])
sketch8.MapMode = "FlatFace"
sketch8.AttachmentOffset = App.Placement(Vector(0, 0, -30), App.Rotation())
add_polygon(sketch8, [(2.4, 29.4), (4.4, 29.4), (4.4, -29.4), (2.4, -29.4)])
add_polygon(sketch8, [(2.8, -29), (4, -29), (4, 29), (2.8, 29)])
add_polygon(sketch8, [(-4.4, -29.4), (-4.4, 29.4), (-2.4, 29.4), (-2.4, -29.4)])
add_polygon(sketch8, [(-4, 29), (-4, -29), (-2.8, -29), (-2.8, 29)])
sketch8.addConstraint(Sketcher.Constraint("Horizontal", 0))
sketch8.addConstraint(Sketcher.Constraint("Vertical", 1))
sketch8.addConstraint(Sketcher.Constraint("Horizontal", 2))
sketch8.addConstraint(Sketcher.Constraint("Vertical", 3))
sketch8.addConstraint(Sketcher.Constraint("Horizontal", 4))
sketch8.addConstraint(Sketcher.Constraint("Vertical", 5))
sketch8.addConstraint(Sketcher.Constraint("Horizontal", 6))
sketch8.addConstraint(Sketcher.Constraint("Vertical", 7))
sketch8.addConstraint(Sketcher.Constraint("Vertical", 8))
sketch8.addConstraint(Sketcher.Constraint("Horizontal", 9))
sketch8.addConstraint(Sketcher.Constraint("Vertical", 10))
sketch8.addConstraint(Sketcher.Constraint("Horizontal", 11))
sketch8.addConstraint(Sketcher.Constraint("Vertical", 12))
sketch8.addConstraint(Sketcher.Constraint("Horizontal", 13))
sketch8.addConstraint(Sketcher.Constraint("Vertical", 14))
sketch8.addConstraint(Sketcher.Constraint("Horizontal", 15))
sketch8.addConstraint(Sketcher.Constraint("Symmetric", 1, 2, 8, 2, -1, 1))
sketch8.addConstraint(Sketcher.Constraint("Symmetric", 3, 2, 10, 2, -1, 1))
sketch8.addConstraint(Sketcher.Constraint("Symmetric", 5, 2, 12, 2, -1, 1))
sketch8.addConstraint(Sketcher.Constraint("Symmetric", 7, 2, 14, 2, -1, 1))
sketch8.addConstraint(Sketcher.Constraint("Horizontal", 3, 2, 8, 2))
sketch8.addConstraint(Sketcher.Constraint("Horizontal", 7, 2, 12, 2))
sketch8.addConstraint(Sketcher.Constraint("DistanceY", 5, 1, 5, 2, Q("58 mm")))
sketch8.addConstraint(Sketcher.Constraint("DistanceX", 4, 1, 4, 2, Q("1.2 mm")))
sketch8.addConstraint(Sketcher.Constraint("DistanceX", -1, 1, 4, 2, Q("4 mm")))
sketch8.addConstraint(Sketcher.Constraint("DistanceX", 4, 2, 1, 2, Q("0.4 mm")))
sketch8.addConstraint(Sketcher.Constraint("DistanceY", 1, 2, 4, 2, Q("0.4 mm")))
sketch8.addConstraint(Sketcher.Constraint("DistanceX", 3, 2, 6, 2, Q("0.4 mm")))
pad4 = body.newObject("PartDesign::Pad", "Pad003")
pad4.Profile = sketch8
pad4.Length = 0.5

sketch9 = body.newObject("Sketcher::SketchObject", "Sketch008")
sketch9.AttachmentSupport = (doc.getObject("YZ_Plane"), [""])
sketch9.MapMode = "FlatFace"
sketch9.AttachmentOffset = App.Placement(Vector(0, 0, 30), App.Rotation())
add_polygon(sketch9, [(-2.4, -29.4), (-2.4, 29.4), (-4.4, 29.4), (-4.4, -29.4)])
add_polygon(sketch9, [(4.4, 29.4), (2.4, 29.4), (2.4, -29.4), (4.4, -29.4)])
sketch9.addConstraint(Sketcher.Constraint("Vertical", 0))
sketch9.addConstraint(Sketcher.Constraint("Horizontal", 1))
sketch9.addConstraint(Sketcher.Constraint("Vertical", 2))
sketch9.addConstraint(Sketcher.Constraint("Horizontal", 3))
sketch9.addConstraint(Sketcher.Constraint("Horizontal", 4))
sketch9.addConstraint(Sketcher.Constraint("Vertical", 5))
sketch9.addConstraint(Sketcher.Constraint("Horizontal", 6))
sketch9.addConstraint(Sketcher.Constraint("Vertical", 7))
sketch9.addConstraint(Sketcher.Constraint("Symmetric", 3, 2, 4, 2, -1, 1))
sketch9.addConstraint(Sketcher.Constraint("Symmetric", 1, 2, 6, 2, -1, 1))
sketch9.addConstraint(Sketcher.Constraint("Horizontal", 1, 2, 4, 2))
sketch9.addConstraint(Sketcher.Constraint("DistanceX", 1, 2, 1, 1, Q("2 mm")))
sketch9.addConstraint(Sketcher.Constraint("DistanceY", 0, 1, 0, 2, Q("58.8 mm")))
sketch9.addConstraint(Sketcher.Constraint("DistanceX", 0, 2, -1, 1, Q("2.4 mm")))
pocket5 = body.newObject("PartDesign::Pocket", "Pocket004")
pocket5.Profile = sketch9
pocket5.Length = 1.5

sketch10 = body.newObject("Sketcher::SketchObject", "Sketch009")
sketch10.AttachmentSupport = (doc.getObject("YZ_Plane"), [""])
sketch10.MapMode = "FlatFace"
sketch10.AttachmentOffset = App.Placement(Vector(0, 0, 30), App.Rotation())
add_polygon(sketch10, [(-2.4, -29.4), (-2.4, 29.4), (-4.4, 29.4), (-4.4, -29.4)])
add_polygon(sketch10, [(-4, -29), (-4, 29), (-2.8, 29), (-2.8, -29)])
add_polygon(sketch10, [(4.4, 29.4), (2.4, 29.4), (2.4, -29.4), (4.4, -29.4)])
add_polygon(sketch10, [(2.8, 29), (4, 29), (4, -29), (2.8, -29)])
sketch10.addConstraint(Sketcher.Constraint("Vertical", 0))
sketch10.addConstraint(Sketcher.Constraint("Horizontal", 1))
sketch10.addConstraint(Sketcher.Constraint("Vertical", 2))
sketch10.addConstraint(Sketcher.Constraint("Horizontal", 3))
sketch10.addConstraint(Sketcher.Constraint("Vertical", 4))
sketch10.addConstraint(Sketcher.Constraint("Horizontal", 5))
sketch10.addConstraint(Sketcher.Constraint("Vertical", 6))
sketch10.addConstraint(Sketcher.Constraint("Horizontal", 7))
sketch10.addConstraint(Sketcher.Constraint("Horizontal", 8))
sketch10.addConstraint(Sketcher.Constraint("Vertical", 9))
sketch10.addConstraint(Sketcher.Constraint("Horizontal", 10))
sketch10.addConstraint(Sketcher.Constraint("Vertical", 11))
sketch10.addConstraint(Sketcher.Constraint("Horizontal", 12))
sketch10.addConstraint(Sketcher.Constraint("Vertical", 13))
sketch10.addConstraint(Sketcher.Constraint("Horizontal", 14))
sketch10.addConstraint(Sketcher.Constraint("Vertical", 15))
sketch10.addConstraint(Sketcher.Constraint("Symmetric", 3, 2, 8, 2, -1, 1))
sketch10.addConstraint(Sketcher.Constraint("Symmetric", 1, 2, 10, 2, -1, 1))
sketch10.addConstraint(Sketcher.Constraint("Symmetric", 7, 2, 12, 2, -1, 1))
sketch10.addConstraint(Sketcher.Constraint("Symmetric", 5, 2, 14, 2, -1, 1))
sketch10.addConstraint(Sketcher.Constraint("Horizontal", 1, 2, 8, 2))
sketch10.addConstraint(Sketcher.Constraint("Horizontal", 5, 2, 12, 2))
sketch10.addConstraint(Sketcher.Constraint("DistanceX", 5, 1, 5, 2, Q("1.2 mm")))
sketch10.addConstraint(Sketcher.Constraint("DistanceX", 4, 2, -1, 1, Q("4 mm")))
sketch10.addConstraint(Sketcher.Constraint("DistanceX", 1, 2, 4, 2, Q("0.4 mm")))
sketch10.addConstraint(Sketcher.Constraint("DistanceY", 4, 2, 1, 2, Q("0.4 mm")))
sketch10.addConstraint(Sketcher.Constraint("DistanceX", 5, 2, 0, 2, Q("0.4 mm")))
sketch10.addConstraint(Sketcher.Constraint("DistanceY", 4, 1, 4, 2, Q("58 mm")))
pad5 = body.newObject("PartDesign::Pad", "Pad004")
pad5.Profile = sketch10
pad5.Length = 0.5
pad5.Reversed = True

doc.recompute()
